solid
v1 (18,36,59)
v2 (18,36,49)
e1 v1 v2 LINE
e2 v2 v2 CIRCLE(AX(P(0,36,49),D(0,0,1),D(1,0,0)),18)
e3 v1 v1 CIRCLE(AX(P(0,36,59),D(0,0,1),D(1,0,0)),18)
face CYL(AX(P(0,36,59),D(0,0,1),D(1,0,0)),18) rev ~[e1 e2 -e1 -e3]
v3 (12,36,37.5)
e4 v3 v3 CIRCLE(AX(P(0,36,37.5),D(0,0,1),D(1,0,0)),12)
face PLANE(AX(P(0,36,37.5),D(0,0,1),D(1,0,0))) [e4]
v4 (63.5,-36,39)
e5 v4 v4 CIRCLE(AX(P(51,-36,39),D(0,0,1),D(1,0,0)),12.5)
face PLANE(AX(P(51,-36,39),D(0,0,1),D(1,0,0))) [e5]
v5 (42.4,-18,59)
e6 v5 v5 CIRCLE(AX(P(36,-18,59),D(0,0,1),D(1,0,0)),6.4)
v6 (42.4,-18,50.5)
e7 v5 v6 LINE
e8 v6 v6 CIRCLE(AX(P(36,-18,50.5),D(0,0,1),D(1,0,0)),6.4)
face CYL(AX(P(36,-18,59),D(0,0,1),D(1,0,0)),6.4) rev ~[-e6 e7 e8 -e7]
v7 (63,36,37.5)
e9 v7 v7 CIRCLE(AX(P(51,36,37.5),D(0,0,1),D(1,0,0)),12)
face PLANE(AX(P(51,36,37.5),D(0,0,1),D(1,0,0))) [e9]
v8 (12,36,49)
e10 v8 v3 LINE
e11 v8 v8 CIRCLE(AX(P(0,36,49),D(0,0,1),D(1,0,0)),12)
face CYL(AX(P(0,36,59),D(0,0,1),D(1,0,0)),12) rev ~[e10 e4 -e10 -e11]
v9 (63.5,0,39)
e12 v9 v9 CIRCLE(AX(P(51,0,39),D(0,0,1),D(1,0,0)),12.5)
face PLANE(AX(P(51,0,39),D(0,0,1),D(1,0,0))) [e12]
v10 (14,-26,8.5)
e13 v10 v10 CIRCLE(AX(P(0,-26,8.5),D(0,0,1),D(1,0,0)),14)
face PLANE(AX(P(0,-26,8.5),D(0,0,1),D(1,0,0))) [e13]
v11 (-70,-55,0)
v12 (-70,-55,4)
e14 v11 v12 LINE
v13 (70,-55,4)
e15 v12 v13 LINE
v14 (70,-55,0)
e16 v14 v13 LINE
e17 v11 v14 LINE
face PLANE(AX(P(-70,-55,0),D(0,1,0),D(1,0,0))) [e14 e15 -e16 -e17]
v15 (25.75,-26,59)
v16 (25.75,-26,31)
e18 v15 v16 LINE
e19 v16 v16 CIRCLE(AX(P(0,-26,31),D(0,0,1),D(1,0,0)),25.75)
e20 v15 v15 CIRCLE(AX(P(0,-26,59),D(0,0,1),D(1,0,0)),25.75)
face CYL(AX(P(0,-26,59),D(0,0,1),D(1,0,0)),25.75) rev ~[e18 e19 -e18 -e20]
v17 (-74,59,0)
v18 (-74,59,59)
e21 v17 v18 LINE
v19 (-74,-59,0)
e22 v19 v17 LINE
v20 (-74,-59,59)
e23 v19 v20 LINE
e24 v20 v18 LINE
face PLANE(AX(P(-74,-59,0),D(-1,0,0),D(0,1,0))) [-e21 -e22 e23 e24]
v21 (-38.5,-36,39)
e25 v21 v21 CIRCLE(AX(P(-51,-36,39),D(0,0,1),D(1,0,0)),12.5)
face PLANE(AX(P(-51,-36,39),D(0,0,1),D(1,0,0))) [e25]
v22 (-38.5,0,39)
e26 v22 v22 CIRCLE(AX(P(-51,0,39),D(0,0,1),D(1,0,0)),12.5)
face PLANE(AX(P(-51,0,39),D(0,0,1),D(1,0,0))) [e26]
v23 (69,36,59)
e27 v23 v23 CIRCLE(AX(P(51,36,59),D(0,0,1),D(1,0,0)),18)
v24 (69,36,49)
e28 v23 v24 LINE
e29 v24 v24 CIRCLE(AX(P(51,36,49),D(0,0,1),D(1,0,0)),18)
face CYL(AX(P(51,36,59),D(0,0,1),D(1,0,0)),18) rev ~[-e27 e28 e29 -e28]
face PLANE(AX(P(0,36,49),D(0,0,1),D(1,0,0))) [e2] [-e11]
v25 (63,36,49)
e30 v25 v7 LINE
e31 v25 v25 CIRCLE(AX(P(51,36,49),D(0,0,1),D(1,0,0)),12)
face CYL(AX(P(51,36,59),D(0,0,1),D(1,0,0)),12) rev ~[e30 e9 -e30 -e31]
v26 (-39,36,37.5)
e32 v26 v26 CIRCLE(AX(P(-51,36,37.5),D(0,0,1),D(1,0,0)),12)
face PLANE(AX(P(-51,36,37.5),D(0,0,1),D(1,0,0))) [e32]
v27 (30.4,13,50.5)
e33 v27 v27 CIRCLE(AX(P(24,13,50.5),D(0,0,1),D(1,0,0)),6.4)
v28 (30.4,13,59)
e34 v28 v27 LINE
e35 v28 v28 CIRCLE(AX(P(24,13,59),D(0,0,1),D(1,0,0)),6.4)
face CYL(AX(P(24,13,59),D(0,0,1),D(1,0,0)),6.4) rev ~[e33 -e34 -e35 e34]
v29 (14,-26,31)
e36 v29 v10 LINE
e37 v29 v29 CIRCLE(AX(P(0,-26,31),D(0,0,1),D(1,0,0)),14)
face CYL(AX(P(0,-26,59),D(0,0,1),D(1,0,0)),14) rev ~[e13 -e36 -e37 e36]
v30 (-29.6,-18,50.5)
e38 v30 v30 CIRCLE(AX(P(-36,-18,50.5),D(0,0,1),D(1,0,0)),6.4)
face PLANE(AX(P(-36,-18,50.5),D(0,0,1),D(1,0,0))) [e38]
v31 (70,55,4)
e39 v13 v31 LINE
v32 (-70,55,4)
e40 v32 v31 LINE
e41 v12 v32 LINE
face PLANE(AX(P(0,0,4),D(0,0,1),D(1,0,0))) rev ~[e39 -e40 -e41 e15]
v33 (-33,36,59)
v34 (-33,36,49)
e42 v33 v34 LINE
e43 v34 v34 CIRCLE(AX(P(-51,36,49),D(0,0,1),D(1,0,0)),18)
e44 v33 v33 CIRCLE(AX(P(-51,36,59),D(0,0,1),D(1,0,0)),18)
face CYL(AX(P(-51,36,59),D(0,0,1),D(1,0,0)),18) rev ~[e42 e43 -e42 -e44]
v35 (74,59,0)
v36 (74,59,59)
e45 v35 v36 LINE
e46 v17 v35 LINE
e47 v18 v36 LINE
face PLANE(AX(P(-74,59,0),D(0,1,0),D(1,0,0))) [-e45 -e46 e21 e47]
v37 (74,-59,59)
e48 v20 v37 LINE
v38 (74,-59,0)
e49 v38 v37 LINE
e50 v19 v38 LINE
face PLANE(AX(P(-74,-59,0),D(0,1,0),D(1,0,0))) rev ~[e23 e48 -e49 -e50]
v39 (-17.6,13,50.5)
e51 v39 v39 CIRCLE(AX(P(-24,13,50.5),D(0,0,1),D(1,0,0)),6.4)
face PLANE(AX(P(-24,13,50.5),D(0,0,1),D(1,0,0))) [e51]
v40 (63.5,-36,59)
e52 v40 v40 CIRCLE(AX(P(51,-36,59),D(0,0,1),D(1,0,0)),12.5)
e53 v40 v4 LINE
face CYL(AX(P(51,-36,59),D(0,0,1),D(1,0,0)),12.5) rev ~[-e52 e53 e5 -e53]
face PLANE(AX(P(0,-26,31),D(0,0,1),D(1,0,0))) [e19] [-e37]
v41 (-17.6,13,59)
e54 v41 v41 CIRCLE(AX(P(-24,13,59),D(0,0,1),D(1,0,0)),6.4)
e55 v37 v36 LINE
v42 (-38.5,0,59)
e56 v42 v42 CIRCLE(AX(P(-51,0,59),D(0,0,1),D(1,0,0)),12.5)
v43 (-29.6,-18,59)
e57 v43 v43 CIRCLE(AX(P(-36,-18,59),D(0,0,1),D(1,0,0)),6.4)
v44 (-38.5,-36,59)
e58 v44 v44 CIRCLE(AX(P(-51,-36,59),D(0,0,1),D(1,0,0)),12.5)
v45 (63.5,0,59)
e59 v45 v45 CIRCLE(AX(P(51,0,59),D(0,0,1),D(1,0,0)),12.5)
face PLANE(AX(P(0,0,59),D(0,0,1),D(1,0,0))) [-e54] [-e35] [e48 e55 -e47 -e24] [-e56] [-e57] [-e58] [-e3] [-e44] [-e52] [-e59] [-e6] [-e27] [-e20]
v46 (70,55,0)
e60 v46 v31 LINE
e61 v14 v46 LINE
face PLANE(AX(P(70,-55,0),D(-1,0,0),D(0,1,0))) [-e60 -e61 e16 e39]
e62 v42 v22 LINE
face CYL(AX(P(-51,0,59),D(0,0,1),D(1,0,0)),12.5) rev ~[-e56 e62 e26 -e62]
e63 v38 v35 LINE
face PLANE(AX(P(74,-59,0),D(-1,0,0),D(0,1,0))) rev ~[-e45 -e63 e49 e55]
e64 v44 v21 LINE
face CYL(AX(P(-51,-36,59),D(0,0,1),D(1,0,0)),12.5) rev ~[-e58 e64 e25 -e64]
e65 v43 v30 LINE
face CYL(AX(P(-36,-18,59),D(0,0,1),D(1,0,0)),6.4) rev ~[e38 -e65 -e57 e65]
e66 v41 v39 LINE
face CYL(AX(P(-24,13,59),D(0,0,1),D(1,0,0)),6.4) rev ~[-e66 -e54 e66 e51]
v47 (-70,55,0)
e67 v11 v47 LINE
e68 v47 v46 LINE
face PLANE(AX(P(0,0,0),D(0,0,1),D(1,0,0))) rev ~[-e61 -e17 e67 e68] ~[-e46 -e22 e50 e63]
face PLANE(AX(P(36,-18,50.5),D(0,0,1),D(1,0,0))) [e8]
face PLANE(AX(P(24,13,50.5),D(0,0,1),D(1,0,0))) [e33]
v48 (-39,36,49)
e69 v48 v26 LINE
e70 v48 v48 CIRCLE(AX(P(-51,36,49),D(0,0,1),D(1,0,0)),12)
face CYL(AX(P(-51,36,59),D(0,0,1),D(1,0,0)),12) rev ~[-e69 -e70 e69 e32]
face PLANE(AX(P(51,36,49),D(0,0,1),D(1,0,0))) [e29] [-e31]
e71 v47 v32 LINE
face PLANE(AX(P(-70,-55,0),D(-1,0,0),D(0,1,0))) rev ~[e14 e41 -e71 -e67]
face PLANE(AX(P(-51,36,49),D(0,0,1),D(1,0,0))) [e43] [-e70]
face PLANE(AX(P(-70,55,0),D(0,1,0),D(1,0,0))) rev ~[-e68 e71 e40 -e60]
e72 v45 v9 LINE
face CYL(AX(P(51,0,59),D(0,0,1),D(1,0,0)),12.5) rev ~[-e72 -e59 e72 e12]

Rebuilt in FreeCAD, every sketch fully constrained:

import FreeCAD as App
import Part
import Sketcher

doc = App.newDocument("Part")
body = doc.addObject("PartDesign::Body", "Body")

sketch1 = body.newObject("Sketcher::SketchObject", "Sketch")
sketch1.AttachmentSupport = (doc.getObject("XY_Plane"), [""])
sketch1.MapMode = "FlatFace"
sketch1.addGeometry([
    Part.LineSegment(App.Vector(-74, 59, 0), App.Vector(-74, -59, 0)),
    Part.LineSegment(App.Vector(-74, -59, 0), App.Vector(74, -59, 0)),
    Part.LineSegment(App.Vector(74, -59, 0), App.Vector(74, 59, 0)),
    Part.LineSegment(App.Vector(74, 59, 0), App.Vector(-74, 59, 0)),
], False)
sketch1.addConstraint([
    Sketcher.Constraint("Coincident", 0, 2, 1, 1),
    Sketcher.Constraint("Coincident", 1, 2, 2, 1),
    Sketcher.Constraint("Coincident", 2, 2, 3, 1),
    Sketcher.Constraint("Coincident", 3, 2, 0, 1),
    Sketcher.Constraint("Vertical", 0),
    Sketcher.Constraint("Horizontal", 1),
    Sketcher.Constraint("Vertical", 2),
    Sketcher.Constraint("Horizontal", 3),
    Sketcher.Constraint("Symmetric", 0, 2, 2, 2, -1, 1),
    Sketcher.Constraint("DistanceX", 1, 1, 1, 2, 148.0),
    Sketcher.Constraint("DistanceY", 0, 2, 0, 1, 118.0),
])
pad1 = body.newObject("PartDesign::Pad", "Pad")
pad1.Profile = sketch1
pad1.Length = 59

sketch2 = body.newObject("Sketcher::SketchObject", "Sketch001")
sketch2.AttachmentSupport = (doc.getObject("XY_Plane"), [""])
sketch2.MapMode = "FlatFace"
sketch2.AttachmentOffset = App.Placement(App.Vector(0, 0, 59), App.Rotation())
sketch2.addGeometry(Part.Circle(App.Vector(0, -26, 0), App.Vector(0, 0, 1), 14), False)
sketch2.addConstraint([
    Sketcher.Constraint("PointOnObject", 0, 3, -2),
    Sketcher.Constraint("Diameter", 0, 28.0),
    Sketcher.Constraint("DistanceY", 0, 3, -1, 1, 26.0),
])
pocket1 = body.newObject("PartDesign::Pocket", "Pocket")
pocket1.Profile = sketch2
pocket1.Length = 50.5

sketch3 = body.newObject("Sketcher::SketchObject", "Sketch002")
sketch3.AttachmentSupport = (doc.getObject("XY_Plane"), [""])
sketch3.MapMode = "FlatFace"
sketch3.AttachmentOffset = App.Placement(App.Vector(0, 0, 59), App.Rotation())
sketch3.addGeometry([
    Part.Circle(App.Vector(0, -26, 0), App.Vector(0, 0, 1), 25.75),
    Part.Circle(App.Vector(0, -26, 0), App.Vector(0, 0, 1), 14),
], False)
sketch3.addConstraint([
    Sketcher.Constraint("Coincident", 1, 3, 0, 3),
    Sketcher.Constraint("PointOnObject", 0, 3, -2),
    Sketcher.Constraint("Diameter", 1, 28.0),
    Sketcher.Constraint("Diameter", 0, 51.5),
    Sketcher.Constraint("DistanceY", 0, 3, -1, 1, 26.0),
])
pocket2 = body.newObject("PartDesign::Pocket", "Pocket001")
pocket2.Profile = sketch3
pocket2.Length = 28

sketch4 = body.newObject("Sketcher::SketchObject", "Sketch003")
sketch4.AttachmentSupport = (doc.getObject("XY_Plane"), [""])
sketch4.MapMode = "FlatFace"
sketch4.AttachmentOffset = App.Placement(App.Vector(0, 0, 59), App.Rotation())
sketch4.addGeometry([
    Part.Circle(App.Vector(-51, 36, 0), App.Vector(0, 0, 1), 12),
    Part.Circle(App.Vector(0, 36, 0), App.Vector(0, 0, 1), 12),
    Part.Circle(App.Vector(51, 36, 0), App.Vector(0, 0, 1), 12),
], False)
sketch4.addConstraint([
    Sketcher.Constraint("Equal", 0, 1),
    Sketcher.Constraint("Equal", 1, 2),
    Sketcher.Constraint("Symmetric", 0, 3, 2, 3, -2),
    Sketcher.Constraint("PointOnObject", 1, 3, -2),
    Sketcher.Constraint("Horizontal", 0, 3, 1, 3),
    Sketcher.Constraint("Diameter", 0, 24.0),
    Sketcher.Constraint("DistanceX", 0, 3, -1, 1, 51.0),
    Sketcher.Constraint("DistanceY", -1, 1, 0, 3, 36.0),
])
pocket3 = body.newObject("PartDesign::Pocket", "Pocket002")
pocket3.Profile = sketch4
pocket3.Length = 21.5

sketch5 = body.newObject("Sketcher::SketchObject", "Sketch004")
sketch5.AttachmentSupport = (doc.getObject("XY_Plane"), [""])
sketch5.MapMode = "FlatFace"
sketch5.AttachmentOffset = App.Placement(App.Vector(0, 0, 59), App.Rotation())
sketch5.addGeometry([
    Part.Circle(App.Vector(-51, 36, 0), App.Vector(0, 0, 1), 18),
    Part.Circle(App.Vector(-51, 36, 0), App.Vector(0, 0, 1), 12),
    Part.Circle(App.Vector(0, 36, 0), App.Vector(0, 0, 1), 18),
    Part.Circle(App.Vector(0, 36, 0), App.Vector(0, 0, 1), 12),
    Part.Circle(App.Vector(51, 36, 0), App.Vector(0, 0, 1), 18),
    Part.Circle(App.Vector(51, 36, 0), App.Vector(0, 0, 1), 12),
], False)
sketch5.addConstraint([
    Sketcher.Constraint("Coincident", 1, 3, 0, 3),
    Sketcher.Constraint("Coincident", 3, 3, 2, 3),
    Sketcher.Constraint("Coincident", 5, 3, 4, 3),
    Sketcher.Constraint("Equal", 0, 2),
    Sketcher.Constraint("Equal", 1, 3),
    Sketcher.Constraint("Equal", 2, 4),
    Sketcher.Constraint("Equal", 3, 5),
    Sketcher.Constraint("Symmetric", 0, 3, 4, 3, -2),
    Sketcher.Constraint("PointOnObject", 2, 3, -2),
    Sketcher.Constraint("Horizontal", 1, 3, 2, 3),
    Sketcher.Constraint("Diameter", 0, 36.0),
    Sketcher.Constraint("Diameter", 1, 24.0),
    Sketcher.Constraint("DistanceX", 0, 3, -1, 1, 51.0),
    Sketcher.Constraint("DistanceY", -1, 1, 0, 3, 36.0),
])
pocket4 = body.newObject("PartDesign::Pocket", "Pocket003")
pocket4.Profile = sketch5
pocket4.Length = 10

sketch6 = body.newObject("Sketcher::SketchObject", "Sketch005")
sketch6.AttachmentSupport = (doc.getObject("XY_Plane"), [""])
sketch6.MapMode = "FlatFace"
sketch6.AttachmentOffset = App.Placement(App.Vector(0, 0, 59), App.Rotation())
sketch6.addGeometry([
    Part.Circle(App.Vector(-36, -18, 0), App.Vector(0, 0, 1), 6.4),
    Part.Circle(App.Vector(-24, 13, 0), App.Vector(0, 0, 1), 6.4),
    Part.Circle(App.Vector(24, 13, 0), App.Vector(0, 0, 1), 6.4),
    Part.Circle(App.Vector(36, -18, 0), App.Vector(0, 0, 1), 6.4),
], False)
sketch6.addConstraint([
    Sketcher.Constraint("Equal", 0, 1),
    Sketcher.Constraint("Equal", 1, 2),
    Sketcher.Constraint("Equal", 2, 3),
    Sketcher.Constraint("Symmetric", 1, 3, 2, 3, -2),
    Sketcher.Constraint("Symmetric", 0, 3, 3, 3, -2),
    Sketcher.Constraint("Diameter", 0, 12.8),
    Sketcher.Constraint("DistanceX", 0, 3, -1, 1, 36.0),
    Sketcher.Constraint("DistanceY", 0, 3, -1, 1, 18.0),
    Sketcher.Constraint("DistanceX", 1, 3, -1, 1, 24.0),
    Sketcher.Constraint("DistanceY", -1, 1, 1, 3, 13.0),
])
pocket5 = body.newObject("PartDesign::Pocket", "Pocket004")
pocket5.Profile = sketch6
pocket5.Length = 8.5

sketch7 = body.newObject("Sketcher::SketchObject", "Sketch006")
sketch7.AttachmentSupport = (doc.getObject("XY_Plane"), [""])
sketch7.MapMode = "FlatFace"
sketch7.AttachmentOffset = App.Placement(App.Vector(0, 0, 59), App.Rotation())
sketch7.addGeometry([
    Part.Circle(App.Vector(-51, -36, 0), App.Vector(0, 0, 1), 12.5),
    Part.Circle(App.Vector(-51, 0, 0), App.Vector(0, 0, 1), 12.5),
    Part.Circle(App.Vector(51, 0, 0), App.Vector(0, 0, 1), 12.5),
    Part.Circle(App.Vector(51, -36, 0), App.Vector(0, 0, 1), 12.5),
], False)
sketch7.addConstraint([
    Sketcher.Constraint("Equal", 0, 1),
    Sketcher.Constraint("Equal", 1, 2),
    Sketcher.Constraint("Equal", 2, 3),
    Sketcher.Constraint("Symmetric", 1, 3, 2, 3, -1, 1),
    Sketcher.Constraint("Symmetric", 0, 3, 3, 3, -2),
    Sketcher.Constraint("PointOnObject", 1, 3, -1),
    Sketcher.Constraint("Vertical", 0, 3, 1, 3),
    Sketcher.Constraint("Diameter", 0, 25.0),
    Sketcher.Constraint("DistanceX", 0, 3, -1, 1, 51.0),
    Sketcher.Constraint("DistanceY", 0, 3, -1, 1, 36.0),
])
pocket6 = body.newObject("PartDesign::Pocket", "Pocket005")
pocket6.Profile = sketch7
pocket6.Length = 20

sketch8 = body.newObject("Sketcher::SketchObject", "Sketch007")
sketch8.AttachmentSupport = (doc.getObject("XY_Plane"), [""])
sketch8.MapMode = "FlatFace"
sketch8.addGeometry([
    Part.LineSegment(App.Vector(-70, 55, 0), App.Vector(-70, -55, 0)),
    Part.LineSegment(App.Vector(-70, -55, 0), App.Vector(70, -55, 0)),
    Part.LineSegment(App.Vector(70, -55, 0), App.Vector(70, 55, 0)),
    Part.LineSegment(App.Vector(70, 55, 0), App.Vector(-70, 55, 0)),
], False)
sketch8.addConstraint([
    Sketcher.Constraint("Coincident", 0, 2, 1, 1),
    Sketcher.Constraint("Coincident", 1, 2, 2, 1),
    Sketcher.Constraint("Coincident", 2, 2, 3, 1),
    Sketcher.Constraint("Coincident", 3, 2, 0, 1),
    Sketcher.Constraint("Vertical", 0),
    Sketcher.Constraint("Horizontal", 1),
    Sketcher.Constraint("Vertical", 2),
    Sketcher.Constraint("Horizontal", 3),
    Sketcher.Constraint("Symmetric", 0, 2, 2, 2, -1, 1),
    Sketcher.Constraint("DistanceX", 1, 1, 1, 2, 140.0),
    Sketcher.Constraint("DistanceY", 0, 2, 0, 1, 110.0),
])
pocket7 = body.newObject("PartDesign::Pocket", "Pocket006")
pocket7.Profile = sketch8
pocket7.Length = 4
pocket7.Reversed = True

doc.recompute()
